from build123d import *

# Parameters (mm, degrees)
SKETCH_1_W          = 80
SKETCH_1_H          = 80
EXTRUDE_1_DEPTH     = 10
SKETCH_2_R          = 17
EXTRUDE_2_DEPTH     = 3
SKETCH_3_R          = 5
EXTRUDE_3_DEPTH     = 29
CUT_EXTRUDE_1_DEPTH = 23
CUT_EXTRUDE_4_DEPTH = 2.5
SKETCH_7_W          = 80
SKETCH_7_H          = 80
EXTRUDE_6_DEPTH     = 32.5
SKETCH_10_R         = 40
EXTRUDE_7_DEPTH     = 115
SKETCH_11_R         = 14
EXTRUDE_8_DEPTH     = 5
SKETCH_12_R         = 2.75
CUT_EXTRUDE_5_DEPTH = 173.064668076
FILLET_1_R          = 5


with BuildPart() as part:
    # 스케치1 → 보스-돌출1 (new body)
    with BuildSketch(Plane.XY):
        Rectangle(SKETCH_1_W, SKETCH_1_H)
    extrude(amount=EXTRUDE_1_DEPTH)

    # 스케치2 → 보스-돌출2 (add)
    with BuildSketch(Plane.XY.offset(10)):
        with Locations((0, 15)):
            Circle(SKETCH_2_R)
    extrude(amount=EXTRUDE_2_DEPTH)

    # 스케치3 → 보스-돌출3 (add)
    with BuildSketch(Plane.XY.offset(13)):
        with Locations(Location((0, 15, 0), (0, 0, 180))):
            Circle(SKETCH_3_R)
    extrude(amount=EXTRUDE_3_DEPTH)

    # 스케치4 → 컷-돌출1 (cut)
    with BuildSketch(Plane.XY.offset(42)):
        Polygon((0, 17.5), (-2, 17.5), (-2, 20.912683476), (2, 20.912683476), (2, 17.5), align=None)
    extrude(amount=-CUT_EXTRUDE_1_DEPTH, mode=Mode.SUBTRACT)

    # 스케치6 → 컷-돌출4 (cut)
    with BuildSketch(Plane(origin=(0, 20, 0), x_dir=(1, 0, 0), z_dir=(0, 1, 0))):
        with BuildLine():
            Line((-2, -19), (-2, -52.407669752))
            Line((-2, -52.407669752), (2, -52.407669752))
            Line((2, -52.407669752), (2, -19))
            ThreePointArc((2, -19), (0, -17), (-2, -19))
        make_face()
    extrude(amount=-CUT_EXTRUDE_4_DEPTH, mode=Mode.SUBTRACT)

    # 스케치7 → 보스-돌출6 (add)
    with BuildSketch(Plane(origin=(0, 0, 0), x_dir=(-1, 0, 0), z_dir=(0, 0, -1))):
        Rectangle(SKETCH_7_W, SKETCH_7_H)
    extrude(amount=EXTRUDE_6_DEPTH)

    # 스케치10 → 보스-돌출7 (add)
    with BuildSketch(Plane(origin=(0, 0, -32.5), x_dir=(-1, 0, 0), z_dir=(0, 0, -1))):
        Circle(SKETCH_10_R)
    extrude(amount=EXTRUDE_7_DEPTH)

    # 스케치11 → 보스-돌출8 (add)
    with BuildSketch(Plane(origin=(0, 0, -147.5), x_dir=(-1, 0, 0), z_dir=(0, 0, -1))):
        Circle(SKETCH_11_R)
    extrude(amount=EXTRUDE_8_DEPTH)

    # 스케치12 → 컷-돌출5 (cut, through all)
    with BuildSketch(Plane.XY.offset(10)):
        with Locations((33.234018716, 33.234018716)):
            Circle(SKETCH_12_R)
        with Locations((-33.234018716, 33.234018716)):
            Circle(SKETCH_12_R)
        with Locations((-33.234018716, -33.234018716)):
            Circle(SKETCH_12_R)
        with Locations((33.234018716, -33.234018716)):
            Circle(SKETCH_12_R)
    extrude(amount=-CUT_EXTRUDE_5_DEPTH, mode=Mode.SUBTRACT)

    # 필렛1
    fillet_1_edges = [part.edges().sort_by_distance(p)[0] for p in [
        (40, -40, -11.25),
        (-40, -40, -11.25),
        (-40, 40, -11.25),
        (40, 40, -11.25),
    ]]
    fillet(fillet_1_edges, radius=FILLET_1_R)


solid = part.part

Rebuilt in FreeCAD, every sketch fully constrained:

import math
import FreeCAD as App
import Part
import Sketcher

V = App.Vector
Q = App.Units.Quantity


def edges_at(feature, points):
    """Names of the edges that pass closest to the given points."""
    edges = feature.Shape.Edges
    near = lambda p: min(range(len(edges)), key=lambda i: edges[i].distToShape(Part.Vertex(*p))[0])
    return sorted({f"Edge{near(p) + 1}" for p in points})

doc = App.newDocument("Part")
body = doc.addObject("PartDesign::Body", "Body")

sketch1 = body.newObject("Sketcher::SketchObject", "Sketch")
sketch1.AttachmentSupport = (doc.getObject("XY_Plane"), [""])
sketch1.MapMode = "FlatFace"
sketch1.addGeometry([
    Part.LineSegment(V(-40, 40, 0), V(-40, -40, 0)),
    Part.LineSegment(V(-40, -40, 0), V(40, -40, 0)),
    Part.LineSegment(V(40, -40, 0), V(40, 40, 0)),
    Part.LineSegment(V(40, 40, 0), V(-40, 40, 0)),
], False)
sketch1.addConstraint([
    Sketcher.Constraint("Coincident", 0, 2, 1, 1),
    Sketcher.Constraint("Coincident", 1, 2, 2, 1),
    Sketcher.Constraint("Coincident", 2, 2, 3, 1),
    Sketcher.Constraint("Coincident", 3, 2, 0, 1),
    Sketcher.Constraint("Vertical", 0),
    Sketcher.Constraint("Horizontal", 1),
    Sketcher.Constraint("Vertical", 2),
    Sketcher.Constraint("Horizontal", 3),
    Sketcher.Constraint("Symmetric", 0, 2, 2, 2, -1, 1),
    Sketcher.Constraint("Equal", 3, 0),
    Sketcher.Constraint("DistanceX", 1, 1, 1, 2, Q("80 mm")),
])
pad1 = body.newObject("PartDesign::Pad", "Pad")
pad1.Profile = sketch1
pad1.Length = 10

sketch2 = body.newObject("Sketcher::SketchObject", "Sketch001")
sketch2.AttachmentSupport = (doc.getObject("XY_Plane"), [""])
sketch2.MapMode = "FlatFace"
sketch2.AttachmentOffset = App.Placement(V(0, 0, 10), App.Rotation())
sketch2.addGeometry(Part.Circle(V(0, 15, 0), V(0, 0, 1), 17), False)
sketch2.addConstraint([
    Sketcher.Constraint("PointOnObject", 0, 3, -2),
    Sketcher.Constraint("Diameter", 0, Q("34 mm")),
    Sketcher.Constraint("DistanceY", -1, 1, 0, 3, Q("15 mm")),
])
pad2 = body.newObject("PartDesign::Pad", "Pad001")
pad2.Profile = sketch2
pad2.Length = 3

sketch3 = body.newObject("Sketcher::SketchObject", "Sketch002")
sketch3.AttachmentSupport = (doc.getObject("XY_Plane"), [""])
sketch3.MapMode = "FlatFace"
sketch3.AttachmentOffset = App.Placement(V(0, 0, 13), App.Rotation())
sketch3.addGeometry(Part.Circle(V(0, 15, 0), V(0, 0, 1), 5), False)
sketch3.addConstraint([
    Sketcher.Constraint("PointOnObject", 0, 3, -2),
    Sketcher.Constraint("Diameter", 0, Q("10 mm")),
    Sketcher.Constraint("DistanceY", -1, 1, 0, 3, Q("15 mm")),
])
pad3 = body.newObject("PartDesign::Pad", "Pad002")
pad3.Profile = sketch3
pad3.Length = 29

sketch4 = body.newObject("Sketcher::SketchObject", "Sketch003")
sketch4.AttachmentSupport = (doc.getObject("XY_Plane"), [""])
sketch4.MapMode = "FlatFace"
sketch4.AttachmentOffset = App.Placement(V(0, 0, 42), App.Rotation())
sketch4.addGeometry([
    Part.LineSegment(V(-2, 17.5, 0), V(2, 17.5, 0)),
    Part.LineSegment(V(2, 17.5, 0), V(2, 20.9, 0)),
    Part.LineSegment(V(2, 20.9, 0), V(-2, 20.9, 0)),
    Part.LineSegment(V(-2, 20.9, 0), V(-2, 17.5, 0)),
], False)
sketch4.addConstraint([
    Sketcher.Constraint("Coincident", 0, 2, 1, 1),
    Sketcher.Constraint("Coincident", 1, 2, 2, 1),
    Sketcher.Constraint("Coincident", 2, 2, 3, 1),
    Sketcher.Constraint("Coincident", 3, 2, 0, 1),
    Sketcher.Constraint("Horizontal", 0),
    Sketcher.Constraint("Vertical", 1),
    Sketcher.Constraint("Horizontal", 2),
    Sketcher.Constraint("Vertical", 3),
    Sketcher.Constraint("DistanceX", 0, 1, 0, 2, Q("4 mm")),
    Sketcher.Constraint("DistanceX", -1, 1, 0, 2, Q("2 mm")),
    Sketcher.Constraint("DistanceY", -1, 1, 0, 2, Q("17.5 mm")),
    Sketcher.Constraint("DistanceY", 1, 1, 1, 2, Q("3.412683 mm")),
])
pocket1 = body.newObject("PartDesign::Pocket", "Pocket")
pocket1.Profile = sketch4
pocket1.Length = 23

sketch5 = body.newObject("Sketcher::SketchObject", "Sketch004")
sketch5.AttachmentSupport = (doc.getObject("XZ_Plane"), [""])
sketch5.MapMode = "FlatFace"
sketch5.AttachmentOffset = App.Placement(V(0, 0, -20), App.Rotation())
sketch5.addGeometry([
    Part.LineSegment(V(-2, 19, 0), V(-2, 52.4, 0)),
    Part.LineSegment(V(-2, 52.4, 0), V(2, 52.4, 0)),
    Part.LineSegment(V(2, 52.4, 0), V(2, 19, 0)),
    Part.ArcOfCircle(Part.Circle(V(0, 19, 0), V(0, 0, 1), 2), math.radians(180), math.radians(360)),
], False)
sketch5.addConstraint([
    Sketcher.Constraint("Coincident", 0, 2, 1, 1),
    Sketcher.Constraint("Coincident", 1, 2, 2, 1),
    Sketcher.Constraint("Tangent", 2, 2, 3, 2),
    Sketcher.Constraint("Tangent", 3, 1, 0, 1),
    Sketcher.Constraint("Vertical", 0),
    Sketcher.Constraint("Horizontal", 1),
    Sketcher.Constraint("Vertical", 2),
    Sketcher.Constraint("PointOnObject", 3, 3, -2),
    Sketcher.Constraint("Radius", 3, Q("2 mm")),
    Sketcher.Constraint("DistanceY", -1, 1, 3, 3, Q("19 mm")),
    Sketcher.Constraint("DistanceY", 0, 1, 0, 2, Q("33.40767 mm")),
])
pocket2 = body.newObject("PartDesign::Pocket", "Pocket001")
pocket2.Profile = sketch5
pocket2.Length = 2.5
pocket2.Reversed = True

sketch6 = body.newObject("Sketcher::SketchObject", "Sketch005")
sketch6.AttachmentSupport = (doc.getObject("XY_Plane"), [""])
sketch6.MapMode = "FlatFace"
sketch6.addGeometry([
    Part.LineSegment(V(40, 40, 0), V(40, -40, 0)),
    Part.LineSegment(V(40, -40, 0), V(-40, -40, 0)),
    Part.LineSegment(V(-40, -40, 0), V(-40, 40, 0)),
    Part.LineSegment(V(-40, 40, 0), V(40, 40, 0)),
], False)
sketch6.addConstraint([
    Sketcher.Constraint("Coincident", 0, 2, 1, 1),
    Sketcher.Constraint("Coincident", 1, 2, 2, 1),
    Sketcher.Constraint("Coincident", 2, 2, 3, 1),
    Sketcher.Constraint("Coincident", 3, 2, 0, 1),
    Sketcher.Constraint("Vertical", 0),
    Sketcher.Constraint("Horizontal", 1),
    Sketcher.Constraint("Vertical", 2),
    Sketcher.Constraint("Horizontal", 3),
    Sketcher.Constraint("Symmetric", 0, 2, 2, 2, -1, 1),
    Sketcher.Constraint("Equal", 3, 0),
    Sketcher.Constraint("DistanceX", 1, 2, 1, 1, Q("80 mm")),
])
pad4 = body.newObject("PartDesign::Pad", "Pad003")
pad4.Profile = sketch6
pad4.Length = 32.5
pad4.Reversed = True

sketch7 = body.newObject("Sketcher::SketchObject", "Sketch006")
sketch7.AttachmentSupport = (doc.getObject("XY_Plane"), [""])
sketch7.MapMode = "FlatFace"
sketch7.AttachmentOffset = App.Placement(V(0, 0, -32.5), App.Rotation())
sketch7.addGeometry(Part.Circle(V(0, 0, 0), V(0, 0, 1), 40), False)
sketch7.addConstraint([
    Sketcher.Constraint("Coincident", 0, 3, -1, 1),
    Sketcher.Constraint("Diameter", 0, Q("80 mm")),
])
pad5 = body.newObject("PartDesign::Pad", "Pad004")
pad5.Profile = sketch7
pad5.Length = 115
pad5.Reversed = True

sketch8 = body.newObject("Sketcher::SketchObject", "Sketch007")
sketch8.AttachmentSupport = (doc.getObject("XY_Plane"), [""])
sketch8.MapMode = "FlatFace"
sketch8.AttachmentOffset = App.Placement(V(0, 0, -147.5), App.Rotation())
sketch8.addGeometry(Part.Circle(V(0, 0, 0), V(0, 0, 1), 14), False)
sketch8.addConstraint([
    Sketcher.Constraint("Coincident", 0, 3, -1, 1),
    Sketcher.Constraint("Diameter", 0, Q("28 mm")),
])
pad6 = body.newObject("PartDesign::Pad", "Pad005")
pad6.Profile = sketch8
pad6.Length = 5
pad6.Reversed = True

sketch9 = body.newObject("Sketcher::SketchObject", "Sketch008")
sketch9.AttachmentSupport = (doc.getObject("XY_Plane"), [""])
sketch9.MapMode = "FlatFace"
sketch9.AttachmentOffset = App.Placement(V(0, 0, 10), App.Rotation())
sketch9.addGeometry([
    Part.Circle(V(33.2, 33.2, 0), V(0, 0, 1), 2.8),
    Part.Circle(V(-33.2, 33.2, 0), V(0, 0, 1), 2.8),
    Part.Circle(V(-33.2, -33.2, 0), V(0, 0, 1), 2.8),
    Part.Circle(V(33.2, -33.2, 0), V(0, 0, 1), 2.8),
], False)
sketch9.addConstraint([
    Sketcher.Constraint("Equal", 0, 1),
    Sketcher.Constraint("Equal", 1, 2),
    Sketcher.Constraint("Equal", 2, 3),
    Sketcher.Constraint("Symmetric", 0, 3, 2, 3, -1, 1),
    Sketcher.Constraint("Symmetric", 1, 3, 3, 3, -1, 1),
    Sketcher.Constraint("Symmetric", 0, 3, 1, 3, -2),
    Sketcher.Constraint("Diameter", 0, Q("5.5 mm")),
    Sketcher.Constraint("DistanceX", -1, 1, 0, 3, Q("33.234019 mm")),
    Sketcher.Constraint("DistanceY", -1, 1, 0, 3, Q("33.234019 mm")),
])
pocket3 = body.newObject("PartDesign::Pocket", "Pocket002")
pocket3.Profile = sketch9
pocket3.Type = "ThroughAll"
doc.recompute()

fillet = body.newObject("PartDesign::Fillet", "Fillet")
fillet.Base = (pocket3, edges_at(pocket3, [
    (40, -40, -11.25),
    (-40, -40, -11.25),
    (-40, 40, -11.25),
    (40, 40, -11.25),
]))
fillet.Radius = 5

doc.recompute()
